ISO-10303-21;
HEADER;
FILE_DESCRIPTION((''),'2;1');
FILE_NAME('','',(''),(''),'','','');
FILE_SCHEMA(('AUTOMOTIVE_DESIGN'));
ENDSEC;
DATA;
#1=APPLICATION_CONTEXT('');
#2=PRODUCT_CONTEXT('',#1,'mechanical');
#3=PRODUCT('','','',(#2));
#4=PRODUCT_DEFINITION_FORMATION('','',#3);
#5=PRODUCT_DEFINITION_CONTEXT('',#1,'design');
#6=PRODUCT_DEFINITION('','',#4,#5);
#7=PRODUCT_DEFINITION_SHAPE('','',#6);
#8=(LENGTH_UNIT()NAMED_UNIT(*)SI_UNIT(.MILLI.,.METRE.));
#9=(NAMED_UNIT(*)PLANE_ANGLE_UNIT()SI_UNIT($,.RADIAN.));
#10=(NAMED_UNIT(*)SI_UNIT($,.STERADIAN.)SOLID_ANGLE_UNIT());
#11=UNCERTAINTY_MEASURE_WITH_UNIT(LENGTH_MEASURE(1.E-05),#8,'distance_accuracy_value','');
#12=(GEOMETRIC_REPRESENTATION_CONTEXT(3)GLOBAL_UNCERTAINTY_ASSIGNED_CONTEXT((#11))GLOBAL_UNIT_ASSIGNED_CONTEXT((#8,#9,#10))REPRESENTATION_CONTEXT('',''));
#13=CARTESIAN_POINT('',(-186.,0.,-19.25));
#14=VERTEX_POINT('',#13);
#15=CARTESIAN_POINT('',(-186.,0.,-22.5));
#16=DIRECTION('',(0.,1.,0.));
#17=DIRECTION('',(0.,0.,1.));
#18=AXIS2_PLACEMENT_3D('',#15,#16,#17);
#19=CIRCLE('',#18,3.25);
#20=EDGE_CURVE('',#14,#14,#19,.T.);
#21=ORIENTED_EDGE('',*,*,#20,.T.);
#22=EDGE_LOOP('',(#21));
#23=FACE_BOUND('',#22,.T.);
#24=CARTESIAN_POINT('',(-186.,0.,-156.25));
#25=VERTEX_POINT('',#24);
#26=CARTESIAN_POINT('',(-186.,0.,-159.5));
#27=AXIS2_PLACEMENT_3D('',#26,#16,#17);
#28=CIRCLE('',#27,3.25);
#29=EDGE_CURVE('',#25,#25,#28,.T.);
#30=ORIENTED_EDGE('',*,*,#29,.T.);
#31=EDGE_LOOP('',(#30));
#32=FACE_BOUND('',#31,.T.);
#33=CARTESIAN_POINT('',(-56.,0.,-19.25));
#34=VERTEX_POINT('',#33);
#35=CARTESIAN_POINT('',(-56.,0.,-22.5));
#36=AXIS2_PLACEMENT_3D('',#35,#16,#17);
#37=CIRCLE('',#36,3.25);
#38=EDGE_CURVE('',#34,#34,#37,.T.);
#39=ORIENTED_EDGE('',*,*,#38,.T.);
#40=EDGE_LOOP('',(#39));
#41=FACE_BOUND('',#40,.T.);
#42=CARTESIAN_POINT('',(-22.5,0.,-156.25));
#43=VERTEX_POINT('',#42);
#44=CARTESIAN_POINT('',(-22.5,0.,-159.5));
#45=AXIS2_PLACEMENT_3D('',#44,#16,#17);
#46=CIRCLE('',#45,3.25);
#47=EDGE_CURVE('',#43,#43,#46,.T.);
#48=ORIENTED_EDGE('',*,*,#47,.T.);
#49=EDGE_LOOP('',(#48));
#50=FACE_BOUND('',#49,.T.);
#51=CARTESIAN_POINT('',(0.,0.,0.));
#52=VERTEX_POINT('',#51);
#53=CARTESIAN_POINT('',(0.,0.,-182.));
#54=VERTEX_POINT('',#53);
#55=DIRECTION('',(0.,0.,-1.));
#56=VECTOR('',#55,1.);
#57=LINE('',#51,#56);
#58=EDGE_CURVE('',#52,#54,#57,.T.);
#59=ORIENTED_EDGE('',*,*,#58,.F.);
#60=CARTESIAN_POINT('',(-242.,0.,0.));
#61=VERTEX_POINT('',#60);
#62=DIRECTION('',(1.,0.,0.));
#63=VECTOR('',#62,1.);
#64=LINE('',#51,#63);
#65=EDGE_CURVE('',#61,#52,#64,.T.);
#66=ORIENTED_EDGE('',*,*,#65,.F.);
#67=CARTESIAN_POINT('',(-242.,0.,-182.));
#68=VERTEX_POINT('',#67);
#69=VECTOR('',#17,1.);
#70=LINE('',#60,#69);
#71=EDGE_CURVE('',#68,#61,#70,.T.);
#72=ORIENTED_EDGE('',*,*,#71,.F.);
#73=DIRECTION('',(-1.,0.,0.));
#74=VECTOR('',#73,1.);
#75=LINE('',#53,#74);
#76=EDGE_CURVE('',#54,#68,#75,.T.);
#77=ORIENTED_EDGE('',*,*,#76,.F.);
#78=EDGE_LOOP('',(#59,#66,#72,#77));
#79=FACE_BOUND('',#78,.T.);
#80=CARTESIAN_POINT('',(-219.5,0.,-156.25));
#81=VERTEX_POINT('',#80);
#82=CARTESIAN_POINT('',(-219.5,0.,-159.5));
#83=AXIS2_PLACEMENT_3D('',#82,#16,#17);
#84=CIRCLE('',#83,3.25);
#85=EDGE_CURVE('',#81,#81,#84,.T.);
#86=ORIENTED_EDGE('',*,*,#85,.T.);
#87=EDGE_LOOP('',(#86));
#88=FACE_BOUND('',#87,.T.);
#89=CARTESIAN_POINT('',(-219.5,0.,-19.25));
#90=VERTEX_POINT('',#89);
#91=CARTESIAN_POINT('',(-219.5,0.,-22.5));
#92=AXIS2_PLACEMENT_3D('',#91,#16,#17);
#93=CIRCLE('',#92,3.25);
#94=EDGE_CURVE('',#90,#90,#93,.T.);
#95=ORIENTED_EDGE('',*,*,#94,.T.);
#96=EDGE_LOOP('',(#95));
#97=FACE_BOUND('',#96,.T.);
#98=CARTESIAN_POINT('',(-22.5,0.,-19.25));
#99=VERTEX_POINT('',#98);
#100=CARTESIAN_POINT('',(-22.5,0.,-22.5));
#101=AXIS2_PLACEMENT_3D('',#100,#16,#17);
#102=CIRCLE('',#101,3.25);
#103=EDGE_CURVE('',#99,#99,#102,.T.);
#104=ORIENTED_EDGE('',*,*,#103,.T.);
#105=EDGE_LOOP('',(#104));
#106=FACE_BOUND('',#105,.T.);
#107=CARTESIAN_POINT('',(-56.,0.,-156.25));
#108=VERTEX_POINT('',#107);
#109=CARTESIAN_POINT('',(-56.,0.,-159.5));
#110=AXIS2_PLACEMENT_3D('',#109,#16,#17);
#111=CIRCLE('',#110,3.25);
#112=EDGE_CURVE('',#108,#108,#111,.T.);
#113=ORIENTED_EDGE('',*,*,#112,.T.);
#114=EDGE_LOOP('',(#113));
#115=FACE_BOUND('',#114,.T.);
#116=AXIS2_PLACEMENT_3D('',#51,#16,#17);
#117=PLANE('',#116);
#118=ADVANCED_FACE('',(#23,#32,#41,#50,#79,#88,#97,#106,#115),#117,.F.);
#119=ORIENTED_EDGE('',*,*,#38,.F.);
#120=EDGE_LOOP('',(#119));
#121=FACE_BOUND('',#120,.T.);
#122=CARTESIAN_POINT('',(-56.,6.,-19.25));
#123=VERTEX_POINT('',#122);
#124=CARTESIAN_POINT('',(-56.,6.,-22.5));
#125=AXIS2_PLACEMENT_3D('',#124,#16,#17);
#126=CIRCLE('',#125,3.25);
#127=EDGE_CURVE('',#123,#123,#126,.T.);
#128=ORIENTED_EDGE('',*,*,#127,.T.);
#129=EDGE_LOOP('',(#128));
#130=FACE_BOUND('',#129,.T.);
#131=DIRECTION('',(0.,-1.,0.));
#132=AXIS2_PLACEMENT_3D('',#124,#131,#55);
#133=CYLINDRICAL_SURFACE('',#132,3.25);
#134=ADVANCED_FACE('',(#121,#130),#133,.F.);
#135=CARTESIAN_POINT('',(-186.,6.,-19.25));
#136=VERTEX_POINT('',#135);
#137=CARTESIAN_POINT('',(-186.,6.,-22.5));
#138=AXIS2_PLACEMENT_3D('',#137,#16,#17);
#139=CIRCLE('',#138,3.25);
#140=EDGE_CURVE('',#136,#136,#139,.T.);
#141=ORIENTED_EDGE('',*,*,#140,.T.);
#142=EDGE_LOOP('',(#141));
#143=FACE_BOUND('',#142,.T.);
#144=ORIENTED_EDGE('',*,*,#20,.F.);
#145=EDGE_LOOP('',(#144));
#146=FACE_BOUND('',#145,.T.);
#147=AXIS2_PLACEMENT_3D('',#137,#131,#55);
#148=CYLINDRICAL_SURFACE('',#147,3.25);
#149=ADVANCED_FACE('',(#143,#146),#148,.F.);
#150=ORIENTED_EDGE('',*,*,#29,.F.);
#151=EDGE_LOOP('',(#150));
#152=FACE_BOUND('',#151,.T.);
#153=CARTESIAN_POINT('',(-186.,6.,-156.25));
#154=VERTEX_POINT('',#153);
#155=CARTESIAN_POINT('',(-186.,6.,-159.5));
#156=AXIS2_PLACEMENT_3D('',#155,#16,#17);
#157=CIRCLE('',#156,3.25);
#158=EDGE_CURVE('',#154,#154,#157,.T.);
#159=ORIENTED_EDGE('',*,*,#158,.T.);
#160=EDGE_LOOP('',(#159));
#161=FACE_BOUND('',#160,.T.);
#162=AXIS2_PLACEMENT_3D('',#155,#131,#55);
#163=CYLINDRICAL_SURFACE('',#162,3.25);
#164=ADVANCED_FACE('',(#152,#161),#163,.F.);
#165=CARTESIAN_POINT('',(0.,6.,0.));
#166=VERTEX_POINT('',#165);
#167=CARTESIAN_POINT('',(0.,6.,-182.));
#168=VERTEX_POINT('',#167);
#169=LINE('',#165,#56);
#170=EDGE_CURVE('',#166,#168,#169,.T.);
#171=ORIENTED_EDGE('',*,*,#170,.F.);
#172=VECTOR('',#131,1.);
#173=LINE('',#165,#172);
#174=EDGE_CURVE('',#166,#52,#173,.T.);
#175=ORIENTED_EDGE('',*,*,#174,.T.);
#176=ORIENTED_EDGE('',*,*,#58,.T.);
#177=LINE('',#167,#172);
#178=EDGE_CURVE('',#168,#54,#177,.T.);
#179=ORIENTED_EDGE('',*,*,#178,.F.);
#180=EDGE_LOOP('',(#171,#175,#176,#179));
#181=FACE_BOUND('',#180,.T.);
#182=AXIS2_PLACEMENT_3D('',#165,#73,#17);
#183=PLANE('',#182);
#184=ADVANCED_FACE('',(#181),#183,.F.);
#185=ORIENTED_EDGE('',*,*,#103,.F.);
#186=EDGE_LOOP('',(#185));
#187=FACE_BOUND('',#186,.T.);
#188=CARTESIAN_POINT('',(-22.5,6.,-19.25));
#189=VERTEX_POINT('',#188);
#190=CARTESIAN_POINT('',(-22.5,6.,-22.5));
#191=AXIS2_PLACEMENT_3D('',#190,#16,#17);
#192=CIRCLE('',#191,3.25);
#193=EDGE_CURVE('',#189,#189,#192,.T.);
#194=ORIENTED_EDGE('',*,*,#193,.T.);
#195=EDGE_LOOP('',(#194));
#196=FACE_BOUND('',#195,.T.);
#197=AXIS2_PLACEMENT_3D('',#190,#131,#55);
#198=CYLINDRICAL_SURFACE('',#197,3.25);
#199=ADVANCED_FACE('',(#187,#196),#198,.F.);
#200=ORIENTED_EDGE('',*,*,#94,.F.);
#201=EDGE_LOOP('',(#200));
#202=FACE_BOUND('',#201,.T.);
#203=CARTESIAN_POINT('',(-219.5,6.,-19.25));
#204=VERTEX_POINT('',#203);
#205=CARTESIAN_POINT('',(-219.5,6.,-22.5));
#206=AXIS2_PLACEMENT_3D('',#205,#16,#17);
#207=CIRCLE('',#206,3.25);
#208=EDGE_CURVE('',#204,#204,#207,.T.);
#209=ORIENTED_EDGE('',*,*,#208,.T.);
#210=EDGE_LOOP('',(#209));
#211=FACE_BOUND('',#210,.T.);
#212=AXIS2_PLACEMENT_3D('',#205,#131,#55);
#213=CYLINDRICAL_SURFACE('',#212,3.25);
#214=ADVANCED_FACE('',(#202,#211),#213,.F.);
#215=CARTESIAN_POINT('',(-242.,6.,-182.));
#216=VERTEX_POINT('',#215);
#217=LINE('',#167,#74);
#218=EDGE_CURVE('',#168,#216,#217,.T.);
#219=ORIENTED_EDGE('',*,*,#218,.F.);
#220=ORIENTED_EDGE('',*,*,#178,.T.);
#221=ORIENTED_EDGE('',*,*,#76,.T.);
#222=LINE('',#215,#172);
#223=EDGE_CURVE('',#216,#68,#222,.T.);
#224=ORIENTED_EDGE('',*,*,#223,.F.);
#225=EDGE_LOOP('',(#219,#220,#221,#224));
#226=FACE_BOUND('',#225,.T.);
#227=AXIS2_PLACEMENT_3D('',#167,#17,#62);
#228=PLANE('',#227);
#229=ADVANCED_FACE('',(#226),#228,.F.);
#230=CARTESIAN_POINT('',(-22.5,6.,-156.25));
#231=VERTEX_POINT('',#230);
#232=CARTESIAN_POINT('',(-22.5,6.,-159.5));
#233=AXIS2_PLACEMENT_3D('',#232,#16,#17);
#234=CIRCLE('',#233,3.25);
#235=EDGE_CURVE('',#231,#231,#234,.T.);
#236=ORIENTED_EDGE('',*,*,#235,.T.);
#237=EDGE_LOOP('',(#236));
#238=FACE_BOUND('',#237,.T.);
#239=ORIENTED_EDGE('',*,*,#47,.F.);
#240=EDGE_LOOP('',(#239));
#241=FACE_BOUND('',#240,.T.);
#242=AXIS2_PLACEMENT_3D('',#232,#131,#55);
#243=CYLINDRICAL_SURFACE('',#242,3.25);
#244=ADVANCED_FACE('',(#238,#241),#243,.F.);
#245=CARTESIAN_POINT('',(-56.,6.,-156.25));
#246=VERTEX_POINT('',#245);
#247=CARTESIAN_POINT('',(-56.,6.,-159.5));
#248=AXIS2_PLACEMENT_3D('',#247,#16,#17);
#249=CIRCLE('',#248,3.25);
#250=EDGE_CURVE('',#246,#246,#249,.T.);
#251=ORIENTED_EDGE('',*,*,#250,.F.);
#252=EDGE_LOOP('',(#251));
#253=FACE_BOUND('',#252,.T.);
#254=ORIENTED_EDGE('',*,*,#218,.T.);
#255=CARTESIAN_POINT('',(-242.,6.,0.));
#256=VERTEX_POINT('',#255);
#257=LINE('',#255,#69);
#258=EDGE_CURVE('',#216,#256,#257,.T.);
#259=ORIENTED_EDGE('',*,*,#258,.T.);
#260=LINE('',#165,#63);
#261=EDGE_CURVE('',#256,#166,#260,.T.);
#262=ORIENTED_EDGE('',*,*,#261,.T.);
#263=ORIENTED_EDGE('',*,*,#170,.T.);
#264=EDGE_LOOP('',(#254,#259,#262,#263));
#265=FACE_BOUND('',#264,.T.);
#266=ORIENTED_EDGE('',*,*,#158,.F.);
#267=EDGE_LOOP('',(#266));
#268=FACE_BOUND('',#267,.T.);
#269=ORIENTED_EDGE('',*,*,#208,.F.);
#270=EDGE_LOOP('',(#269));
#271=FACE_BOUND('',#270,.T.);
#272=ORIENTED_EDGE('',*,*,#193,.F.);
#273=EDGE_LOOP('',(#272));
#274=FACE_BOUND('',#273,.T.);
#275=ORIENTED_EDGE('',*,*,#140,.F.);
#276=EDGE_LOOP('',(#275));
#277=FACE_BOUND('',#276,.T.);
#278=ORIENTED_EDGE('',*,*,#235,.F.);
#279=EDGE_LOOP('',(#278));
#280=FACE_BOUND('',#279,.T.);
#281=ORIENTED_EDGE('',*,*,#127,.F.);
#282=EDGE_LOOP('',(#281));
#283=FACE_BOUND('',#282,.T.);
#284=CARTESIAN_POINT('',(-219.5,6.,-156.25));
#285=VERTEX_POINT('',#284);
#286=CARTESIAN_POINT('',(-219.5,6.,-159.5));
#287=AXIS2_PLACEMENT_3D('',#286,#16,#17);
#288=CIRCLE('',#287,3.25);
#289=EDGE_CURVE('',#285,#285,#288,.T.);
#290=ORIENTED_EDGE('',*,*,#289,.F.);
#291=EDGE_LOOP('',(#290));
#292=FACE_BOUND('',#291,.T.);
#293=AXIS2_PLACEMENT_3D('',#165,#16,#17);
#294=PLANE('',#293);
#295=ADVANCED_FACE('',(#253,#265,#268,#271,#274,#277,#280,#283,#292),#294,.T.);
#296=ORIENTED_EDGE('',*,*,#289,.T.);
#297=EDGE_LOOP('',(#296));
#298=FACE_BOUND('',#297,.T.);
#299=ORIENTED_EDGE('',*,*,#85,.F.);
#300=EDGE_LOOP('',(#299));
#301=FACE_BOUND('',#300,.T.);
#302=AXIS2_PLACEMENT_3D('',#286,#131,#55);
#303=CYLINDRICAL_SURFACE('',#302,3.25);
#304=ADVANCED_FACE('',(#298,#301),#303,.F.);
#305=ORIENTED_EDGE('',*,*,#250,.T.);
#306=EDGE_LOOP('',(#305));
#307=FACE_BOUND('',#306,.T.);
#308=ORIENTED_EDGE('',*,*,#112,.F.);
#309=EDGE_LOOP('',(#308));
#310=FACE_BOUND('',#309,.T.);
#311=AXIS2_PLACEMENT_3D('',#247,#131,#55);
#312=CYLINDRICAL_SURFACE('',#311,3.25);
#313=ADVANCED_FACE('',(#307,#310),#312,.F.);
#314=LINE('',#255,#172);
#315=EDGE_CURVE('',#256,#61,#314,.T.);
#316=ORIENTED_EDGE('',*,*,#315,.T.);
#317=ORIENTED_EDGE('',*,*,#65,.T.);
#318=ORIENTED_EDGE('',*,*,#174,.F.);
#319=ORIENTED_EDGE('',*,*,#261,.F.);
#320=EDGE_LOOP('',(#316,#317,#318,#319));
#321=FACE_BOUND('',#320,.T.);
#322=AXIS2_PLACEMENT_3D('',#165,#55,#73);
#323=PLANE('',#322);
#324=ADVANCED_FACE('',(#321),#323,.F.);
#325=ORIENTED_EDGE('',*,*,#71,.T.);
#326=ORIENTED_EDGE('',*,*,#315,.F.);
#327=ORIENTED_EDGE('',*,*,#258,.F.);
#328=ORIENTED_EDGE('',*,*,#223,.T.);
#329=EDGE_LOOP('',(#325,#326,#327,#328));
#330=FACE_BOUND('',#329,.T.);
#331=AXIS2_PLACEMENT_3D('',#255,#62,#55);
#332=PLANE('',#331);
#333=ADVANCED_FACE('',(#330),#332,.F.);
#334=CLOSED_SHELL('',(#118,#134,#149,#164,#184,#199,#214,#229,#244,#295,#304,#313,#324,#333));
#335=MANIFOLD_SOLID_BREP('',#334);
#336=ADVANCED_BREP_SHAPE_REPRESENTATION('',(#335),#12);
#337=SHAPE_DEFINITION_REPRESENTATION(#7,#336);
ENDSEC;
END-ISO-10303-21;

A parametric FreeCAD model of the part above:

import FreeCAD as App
import Part
import Sketcher

V = App.Vector
Q = App.Units.Quantity

doc = App.newDocument("Part")
body = doc.addObject("PartDesign::Body", "Body")

# Sketch on XZ plane
sketch1 = body.newObject("Sketcher::SketchObject", "Sketch")
sketch1.AttachmentSupport = (doc.getObject("XZ_Plane"), [""])
sketch1.MapMode = "FlatFace"
sketch1.addGeometry([
    Part.LineSegment(V(-242, -182, 0), V(-242, 0, 0)),  # 0
    Part.LineSegment(V(-242, 0, 0), V(0, 0, 0)),  # 1
    Part.LineSegment(V(0, 0, 0), V(0, -182, 0)),  # 2
    Part.LineSegment(V(0, -182, 0), V(-242, -182, 0)),  # 3
    Part.Circle(V(-219.5, -22.5, 0), V(0, 0, 1), 3.25),  # 4
    Part.Circle(V(-186, -22.5, 0), V(0, 0, 1), 3.25),  # 5
    Part.Circle(V(-56, -22.5, 0), V(0, 0, 1), 3.25),  # 6
    Part.Circle(V(-22.5, -22.5, 0), V(0, 0, 1), 3.25),  # 7
    Part.Circle(V(-219.5, -159.5, 0), V(0, 0, 1), 3.25),  # 8
    Part.Circle(V(-186, -159.5, 0), V(0, 0, 1), 3.25),  # 9
    Part.Circle(V(-56, -159.5, 0), V(0, 0, 1), 3.25),  # 10
    Part.Circle(V(-22.5, -159.5, 0), V(0, 0, 1), 3.25),  # 11
], False)
sketch1.addConstraint([
    Sketcher.Constraint("Coincident", 0, 2, 1, 1),
    Sketcher.Constraint("Coincident", 1, 2, 2, 1),
    Sketcher.Constraint("Coincident", 2, 2, 3, 1),
    Sketcher.Constraint("Coincident", 3, 2, 0, 1),
    Sketcher.Constraint("Vertical", 0),
    Sketcher.Constraint("Horizontal", 1),
    Sketcher.Constraint("Vertical", 2),
    Sketcher.Constraint("Horizontal", 3),
    Sketcher.Constraint("Coincident", 1, 2, -1, 1),
    Sketcher.Constraint("Equal", 4, 5),
    Sketcher.Constraint("Equal", 5, 6),
    Sketcher.Constraint("Equal", 6, 7),
    Sketcher.Constraint("Equal", 7, 8),
    Sketcher.Constraint("Equal", 8, 9),
    Sketcher.Constraint("Equal", 9, 10),
    Sketcher.Constraint("Equal", 10, 11),
    Sketcher.Constraint("Horizontal", 4, 3, 5, 3),
    Sketcher.Constraint("Horizontal", 5, 3, 6, 3),
    Sketcher.Constraint("Horizontal", 6, 3, 7, 3),
    Sketcher.Constraint("Horizontal", 8, 3, 9, 3),
    Sketcher.Constraint("Horizontal", 9, 3, 10, 3),
    Sketcher.Constraint("Horizontal", 10, 3, 11, 3),
    Sketcher.Constraint("Vertical", 4, 3, 8, 3),
    Sketcher.Constraint("Vertical", 5, 3, 9, 3),
    Sketcher.Constraint("Vertical", 6, 3, 10, 3),
    Sketcher.Constraint("Vertical", 7, 3, 11, 3),
    Sketcher.Constraint("Diameter", 4, Q("6.5 mm")),
    Sketcher.Constraint("DistanceX", 1, 1, 1, 2, Q("242 mm")),
    Sketcher.Constraint("DistanceY", 0, 1, 0, 2, Q("182 mm")),
    Sketcher.Constraint("DistanceX", 5, 3, -1, 1, Q("186 mm")),
    Sketcher.Constraint("DistanceX", 6, 3, -1, 1, Q("56 mm")),
    Sketcher.Constraint("DistanceX", 4, 3, 7, 3, Q("197 mm")),
    Sketcher.Constraint("DistanceY", 8, 3, 4, 3, Q("137 mm")),
    Sketcher.Constraint("DistanceX", 4, 3, -1, 1, Q("219.5 mm")),
    Sketcher.Constraint("DistanceY", 4, 3, -1, 1, Q("22.5 mm")),
])
pad1 = body.newObject("PartDesign::Pad", "Pad")
pad1.Profile = sketch1
pad1.Length = 6
pad1.Reversed = True

doc.recompute()
